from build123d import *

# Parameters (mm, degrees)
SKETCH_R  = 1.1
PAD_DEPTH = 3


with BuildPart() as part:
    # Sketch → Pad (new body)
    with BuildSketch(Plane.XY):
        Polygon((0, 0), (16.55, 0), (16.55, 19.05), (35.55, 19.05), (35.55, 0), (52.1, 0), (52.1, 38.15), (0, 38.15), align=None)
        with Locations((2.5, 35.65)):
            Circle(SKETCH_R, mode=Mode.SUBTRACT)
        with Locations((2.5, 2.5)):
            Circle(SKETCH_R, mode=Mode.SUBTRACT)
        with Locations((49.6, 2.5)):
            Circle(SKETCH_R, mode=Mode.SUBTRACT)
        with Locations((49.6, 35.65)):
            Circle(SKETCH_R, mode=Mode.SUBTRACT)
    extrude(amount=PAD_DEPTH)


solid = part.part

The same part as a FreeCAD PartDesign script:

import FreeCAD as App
import Part
import Sketcher
Q = App.Units.Quantity

doc = App.newDocument("Part")
body = doc.addObject("PartDesign::Body", "Body")

# Sketch on XY plane
sketch1 = body.newObject("Sketcher::SketchObject", "Sketch")
sketch1.AttachmentSupport = (doc.getObject("XY_Plane"), [""])
sketch1.MapMode = "FlatFace"
sketch1.addGeometry([
    Part.LineSegment(App.Vector(0, 0, 0), App.Vector(16.6, 0, 0)),  # 0
    Part.LineSegment(App.Vector(16.6, 0, 0), App.Vector(16.6, 19.1, 0)),  # 1
    Part.LineSegment(App.Vector(16.6, 19.1, 0), App.Vector(35.5, 19.1, 0)),  # 2
    Part.LineSegment(App.Vector(35.5, 19.1, 0), App.Vector(35.5, 0, 0)),  # 3
    Part.LineSegment(App.Vector(35.5, 0, 0), App.Vector(52.1, 0, 0)),  # 4
    Part.LineSegment(App.Vector(52.1, 0, 0), App.Vector(52.1, 38.1, 0)),  # 5
    Part.LineSegment(App.Vector(52.1, 38.1, 0), App.Vector(0, 38.1, 0)),  # 6
    Part.LineSegment(App.Vector(0, 38.1, 0), App.Vector(0, 0, 0)),  # 7
    Part.Circle(App.Vector(2.5, 2.5, 0), App.Vector(0, 0, 1), 1.1),  # 8
    Part.Circle(App.Vector(49.6, 2.5, 0), App.Vector(0, 0, 1), 1.1),  # 9
    Part.Circle(App.Vector(2.5, 35.6, 0), App.Vector(0, 0, 1), 1.1),  # 10
    Part.Circle(App.Vector(49.6, 35.6, 0), App.Vector(0, 0, 1), 1.1),  # 11
], False)
sketch1.addConstraint([
    Sketcher.Constraint("Coincident", 0, 2, 1, 1),
    Sketcher.Constraint("Coincident", 1, 2, 2, 1),
    Sketcher.Constraint("Coincident", 2, 2, 3, 1),
    Sketcher.Constraint("Coincident", 3, 2, 4, 1),
    Sketcher.Constraint("Coincident", 4, 2, 5, 1),
    Sketcher.Constraint("Coincident", 5, 2, 6, 1),
    Sketcher.Constraint("Coincident", 6, 2, 7, 1),
    Sketcher.Constraint("Coincident", 7, 2, 0, 1),
    Sketcher.Constraint("Horizontal", 0),
    Sketcher.Constraint("Vertical", 1),
    Sketcher.Constraint("Horizontal", 2),
    Sketcher.Constraint("Vertical", 3),
    Sketcher.Constraint("Horizontal", 4),
    Sketcher.Constraint("Vertical", 5),
    Sketcher.Constraint("Horizontal", 6),
    Sketcher.Constraint("Vertical", 7),
    Sketcher.Constraint("Coincident", 7, 2, -1, 1),
    Sketcher.Constraint("Equal", 8, 9),
    Sketcher.Constraint("Equal", 9, 10),
    Sketcher.Constraint("Equal", 10, 11),
    Sketcher.Constraint("PointOnObject", 3, 2, -1),
    Sketcher.Constraint("Horizontal", 8, 3, 9, 3),
    Sketcher.Constraint("Horizontal", 10, 3, 11, 3),
    Sketcher.Constraint("Vertical", 8, 3, 10, 3),
    Sketcher.Constraint("Vertical", 9, 3, 11, 3),
    Sketcher.Constraint("Equal", 0, 4),
    Sketcher.Constraint("Diameter", 8, Q("2.2 mm")),
    Sketcher.Constraint("DistanceX", 2, 1, 2, 2, Q("19 mm")),
    Sketcher.Constraint("DistanceX", 6, 2, 6, 1, Q("52.1 mm")),
    Sketcher.Constraint("DistanceY", 1, 1, 1, 2, Q("19.05 mm")),
    Sketcher.Constraint("DistanceY", 5, 1, 5, 2, Q("38.15 mm")),
    Sketcher.Constraint("DistanceX", -1, 1, 8, 3, Q("2.5 mm")),
    Sketcher.Constraint("DistanceY", -1, 1, 8, 3, Q("2.5 mm")),
    Sketcher.Constraint("DistanceX", -1, 1, 9, 3, Q("49.6 mm")),
    Sketcher.Constraint("DistanceY", 1, 2, 10, 3, Q("16.6 mm")),
])
pad1 = body.newObject("PartDesign::Pad", "Pad")
pad1.Profile = sketch1
pad1.Length = 3

doc.recompute()
